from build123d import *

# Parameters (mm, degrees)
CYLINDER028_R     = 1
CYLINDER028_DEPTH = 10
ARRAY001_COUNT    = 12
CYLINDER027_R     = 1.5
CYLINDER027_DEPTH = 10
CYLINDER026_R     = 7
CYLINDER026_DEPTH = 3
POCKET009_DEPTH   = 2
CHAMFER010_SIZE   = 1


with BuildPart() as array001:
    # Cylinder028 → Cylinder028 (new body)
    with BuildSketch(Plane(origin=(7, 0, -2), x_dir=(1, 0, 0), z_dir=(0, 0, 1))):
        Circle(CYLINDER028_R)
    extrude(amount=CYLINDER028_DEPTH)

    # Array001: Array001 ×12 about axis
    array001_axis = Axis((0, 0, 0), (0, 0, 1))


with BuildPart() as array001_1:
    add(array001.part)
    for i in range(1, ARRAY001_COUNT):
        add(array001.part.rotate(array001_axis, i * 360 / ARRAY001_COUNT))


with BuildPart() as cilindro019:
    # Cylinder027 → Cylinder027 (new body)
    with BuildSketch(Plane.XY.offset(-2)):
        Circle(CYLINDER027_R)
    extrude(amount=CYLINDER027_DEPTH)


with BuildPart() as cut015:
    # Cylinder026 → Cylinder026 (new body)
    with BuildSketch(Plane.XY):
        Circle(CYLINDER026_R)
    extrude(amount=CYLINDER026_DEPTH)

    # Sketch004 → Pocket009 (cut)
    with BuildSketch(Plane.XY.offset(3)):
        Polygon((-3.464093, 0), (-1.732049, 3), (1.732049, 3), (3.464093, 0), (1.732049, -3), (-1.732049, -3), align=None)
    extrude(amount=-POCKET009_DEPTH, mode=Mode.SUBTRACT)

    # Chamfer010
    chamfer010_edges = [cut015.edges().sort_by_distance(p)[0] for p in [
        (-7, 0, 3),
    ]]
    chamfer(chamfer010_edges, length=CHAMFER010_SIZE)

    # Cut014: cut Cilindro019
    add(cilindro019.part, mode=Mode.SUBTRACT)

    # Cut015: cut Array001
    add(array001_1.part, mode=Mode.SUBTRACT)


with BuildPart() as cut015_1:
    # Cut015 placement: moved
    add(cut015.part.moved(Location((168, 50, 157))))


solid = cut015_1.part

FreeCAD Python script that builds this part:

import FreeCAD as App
import Part
import Sketcher


def edges_at(feature, points):
    """Names of the edges that pass closest to the given points."""
    edges = feature.Shape.Edges
    near = lambda p: min(range(len(edges)), key=lambda i: edges[i].distToShape(Part.Vertex(*p))[0])
    return sorted({f"Edge{near(p) + 1}" for p in points})

doc = App.newDocument("Part")
body = doc.addObject("PartDesign::Body", "Body")

# Sketch on XY plane
sketch1 = body.newObject("Sketcher::SketchObject", "Sketch")
sketch1.AttachmentSupport = (doc.getObject("XY_Plane"), [""])
sketch1.MapMode = "FlatFace"
sketch1.AttachmentOffset = App.Placement(App.Vector(0, 0, -2), App.Rotation())
sketch1.addGeometry(Part.Circle(App.Vector(7, 0, 0), App.Vector(0, 0, 1), 1), False)
sketch1.addConstraint(Sketcher.Constraint("PointOnObject", 0, 3, -1))
sketch1.addConstraint(Sketcher.Constraint("Diameter", 0, 2.0))
sketch1.addConstraint(Sketcher.Constraint("DistanceX", -1, 1, 0, 3, 7.0))
pad1 = body.newObject("PartDesign::Pad", "Pad")
pad1.Profile = sketch1
pad1.Length = 10
body2 = doc.addObject("PartDesign::Body", "Body001")
body2.AllowCompound = True
doc.recompute()

body2.BaseFeature = body
doc.recompute()

body3 = doc.addObject("PartDesign::Body", "Body002")
body3.BaseFeature = body
body3.Placement = App.Placement(App.Vector(0, 0, 0), App.Rotation(App.Vector(0, 0, 1), 30))
boolean = body2.newObject("PartDesign::Boolean", "Boolean")
boolean.Type = "Fuse"
boolean.addObjects([body3])
doc.recompute()

body4 = doc.addObject("PartDesign::Body", "Body003")
body4.BaseFeature = body
body4.Placement = App.Placement(App.Vector(0, 0, 0), App.Rotation(App.Vector(0, 0, 1), 60))
boolean2 = body2.newObject("PartDesign::Boolean", "Boolean001")
boolean2.Type = "Fuse"
boolean2.addObjects([body4])
doc.recompute()

body5 = doc.addObject("PartDesign::Body", "Body004")
body5.BaseFeature = body
body5.Placement = App.Placement(App.Vector(0, 0, 0), App.Rotation(App.Vector(0, 0, 1), 90))
boolean3 = body2.newObject("PartDesign::Boolean", "Boolean002")
boolean3.Type = "Fuse"
boolean3.addObjects([body5])
doc.recompute()

body6 = doc.addObject("PartDesign::Body", "Body005")
body6.BaseFeature = body
body6.Placement = App.Placement(App.Vector(0, 0, 0), App.Rotation(App.Vector(0, 0, 1), 120))
boolean4 = body2.newObject("PartDesign::Boolean", "Boolean003")
boolean4.Type = "Fuse"
boolean4.addObjects([body6])
doc.recompute()

body7 = doc.addObject("PartDesign::Body", "Body006")
body7.BaseFeature = body
body7.Placement = App.Placement(App.Vector(0, 0, 0), App.Rotation(App.Vector(0, 0, 1), 150))
boolean5 = body2.newObject("PartDesign::Boolean", "Boolean004")
boolean5.Type = "Fuse"
boolean5.addObjects([body7])
doc.recompute()

body8 = doc.addObject("PartDesign::Body", "Body007")
body8.BaseFeature = body
body8.Placement = App.Placement(App.Vector(0, 0, 0), App.Rotation(App.Vector(0, 0, 1), 180))
boolean6 = body2.newObject("PartDesign::Boolean", "Boolean005")
boolean6.Type = "Fuse"
boolean6.addObjects([body8])
doc.recompute()

body9 = doc.addObject("PartDesign::Body", "Body008")
body9.BaseFeature = body
body9.Placement = App.Placement(App.Vector(0, 0, 0), App.Rotation(App.Vector(0, 0, 1), 210))
boolean7 = body2.newObject("PartDesign::Boolean", "Boolean006")
boolean7.Type = "Fuse"
boolean7.addObjects([body9])
doc.recompute()

body10 = doc.addObject("PartDesign::Body", "Body009")
body10.BaseFeature = body
body10.Placement = App.Placement(App.Vector(0, 0, 0), App.Rotation(App.Vector(0, 0, 1), 240))
boolean8 = body2.newObject("PartDesign::Boolean", "Boolean007")
boolean8.Type = "Fuse"
boolean8.addObjects([body10])
doc.recompute()

body11 = doc.addObject("PartDesign::Body", "Body010")
body11.BaseFeature = body
body11.Placement = App.Placement(App.Vector(0, 0, 0), App.Rotation(App.Vector(0, 0, 1), 270))
boolean9 = body2.newObject("PartDesign::Boolean", "Boolean008")
boolean9.Type = "Fuse"
boolean9.addObjects([body11])
doc.recompute()

body12 = doc.addObject("PartDesign::Body", "Body011")
body12.BaseFeature = body
body12.Placement = App.Placement(App.Vector(0, 0, 0), App.Rotation(App.Vector(0, 0, 1), 300))
boolean10 = body2.newObject("PartDesign::Boolean", "Boolean009")
boolean10.Type = "Fuse"
boolean10.addObjects([body12])
doc.recompute()

body.Placement = App.Placement(App.Vector(0, 0, 0), App.Rotation(App.Vector(0, 0, 1), 330))
boolean11 = body2.newObject("PartDesign::Boolean", "Boolean010")
boolean11.Type = "Fuse"
boolean11.addObjects([body])
body13 = doc.addObject("PartDesign::Body", "Body012")

# Sketch on XY plane
sketch2 = body13.newObject("Sketcher::SketchObject", "Sketch001")
sketch2.AttachmentSupport = (doc.getObject("XY_Plane012"), [""])
sketch2.MapMode = "FlatFace"
sketch2.AttachmentOffset = App.Placement(App.Vector(0, 0, -2), App.Rotation())
sketch2.addGeometry(Part.Circle(App.Vector(0, 0, 0), App.Vector(0, 0, 1), 1.5), False)
sketch2.addConstraint(Sketcher.Constraint("Coincident", 0, 3, -1, 1))
sketch2.addConstraint(Sketcher.Constraint("Diameter", 0, 3.0))
pad2 = body13.newObject("PartDesign::Pad", "Pad001")
pad2.Profile = sketch2
pad2.Length = 10
body14 = doc.addObject("PartDesign::Body", "Body013")

# Sketch on XY plane
sketch3 = body14.newObject("Sketcher::SketchObject", "Sketch002")
sketch3.AttachmentSupport = (doc.getObject("XY_Plane013"), [""])
sketch3.MapMode = "FlatFace"
sketch3.addGeometry(Part.Circle(App.Vector(0, 0, 0), App.Vector(0, 0, 1), 7), False)
sketch3.addConstraint(Sketcher.Constraint("Coincident", 0, 3, -1, 1))
sketch3.addConstraint(Sketcher.Constraint("Diameter", 0, 14.0))
pad3 = body14.newObject("PartDesign::Pad", "Pad002")
pad3.Profile = sketch3
pad3.Length = 3

# Sketch on XY plane
sketch4 = body14.newObject("Sketcher::SketchObject", "Sketch003")
sketch4.AttachmentSupport = (doc.getObject("XY_Plane013"), [""])
sketch4.MapMode = "FlatFace"
sketch4.AttachmentOffset = App.Placement(App.Vector(0, 0, 3), App.Rotation())
sketch4.addGeometry(Part.LineSegment(App.Vector(-1.7, 3, 0), App.Vector(-3.5, 0, 0)), False)
sketch4.addGeometry(Part.LineSegment(App.Vector(-3.5, 0, 0), App.Vector(-1.7, -3, 0)), False)
sketch4.addGeometry(Part.LineSegment(App.Vector(-1.7, -3, 0), App.Vector(1.7, -3, 0)), False)
sketch4.addGeometry(Part.LineSegment(App.Vector(1.7, -3, 0), App.Vector(3.5, 0, 0)), False)
sketch4.addGeometry(Part.LineSegment(App.Vector(3.5, 0, 0), App.Vector(1.7, 3, 0)), False)
sketch4.addGeometry(Part.LineSegment(App.Vector(1.7, 3, 0), App.Vector(-1.7, 3, 0)), False)
sketch4.addConstraint(Sketcher.Constraint("Coincident", 0, 2, 1, 1))
sketch4.addConstraint(Sketcher.Constraint("Coincident", 1, 2, 2, 1))
sketch4.addConstraint(Sketcher.Constraint("Coincident", 2, 2, 3, 1))
sketch4.addConstraint(Sketcher.Constraint("Coincident", 3, 2, 4, 1))
sketch4.addConstraint(Sketcher.Constraint("Coincident", 4, 2, 5, 1))
sketch4.addConstraint(Sketcher.Constraint("Coincident", 5, 2, 0, 1))
sketch4.addConstraint(Sketcher.Constraint("Horizontal", 2))
sketch4.addConstraint(Sketcher.Constraint("Horizontal", 5))
sketch4.addConstraint(Sketcher.Constraint("Symmetric", 0, 2, 3, 2, -1, 1))
sketch4.addConstraint(Sketcher.Constraint("Symmetric", 1, 2, 4, 2, -1, 1))
sketch4.addConstraint(Sketcher.Constraint("PointOnObject", 0, 2, -1))
sketch4.addConstraint(Sketcher.Constraint("Parallel", 0, 3))
sketch4.addConstraint(Sketcher.Constraint("Vertical", 2, 2, 4, 2))
sketch4.addConstraint(Sketcher.Constraint("DistanceY", 1, 2, -1, 1, 3.0))
sketch4.addConstraint(Sketcher.Constraint("Distance", 0, 3.464098))
sketch4.addConstraint(Sketcher.Constraint("DistanceX", 2, 1, 2, 2, 3.464098))
pocket1 = body14.newObject("PartDesign::Pocket", "Pocket")
pocket1.Profile = sketch4
pocket1.Length = 2
doc.recompute()

chamfer = body14.newObject("PartDesign::Chamfer", "Chamfer")
chamfer.Base = (pocket1, edges_at(pocket1, [(-7, 0, 3)]))
chamfer.Size = 1
doc.recompute()

boolean12 = body14.newObject("PartDesign::Boolean", "Boolean011")
boolean12.Type = "Cut"
boolean12.addObjects([body13])
doc.recompute()

boolean13 = body14.newObject("PartDesign::Boolean", "Boolean012")
boolean13.Type = "Cut"
boolean13.addObjects([body2])
body15 = doc.addObject("PartDesign::Body", "Body014")
doc.recompute()

body14.Placement = App.Placement(App.Vector(168, 50, 157), App.Rotation(App.Vector(0, 0, 1), 0))
boolean14 = body15.newObject("PartDesign::Boolean", "Boolean013")
boolean14.Type = "Fuse"
boolean14.addObjects([body14])

doc.recompute()
